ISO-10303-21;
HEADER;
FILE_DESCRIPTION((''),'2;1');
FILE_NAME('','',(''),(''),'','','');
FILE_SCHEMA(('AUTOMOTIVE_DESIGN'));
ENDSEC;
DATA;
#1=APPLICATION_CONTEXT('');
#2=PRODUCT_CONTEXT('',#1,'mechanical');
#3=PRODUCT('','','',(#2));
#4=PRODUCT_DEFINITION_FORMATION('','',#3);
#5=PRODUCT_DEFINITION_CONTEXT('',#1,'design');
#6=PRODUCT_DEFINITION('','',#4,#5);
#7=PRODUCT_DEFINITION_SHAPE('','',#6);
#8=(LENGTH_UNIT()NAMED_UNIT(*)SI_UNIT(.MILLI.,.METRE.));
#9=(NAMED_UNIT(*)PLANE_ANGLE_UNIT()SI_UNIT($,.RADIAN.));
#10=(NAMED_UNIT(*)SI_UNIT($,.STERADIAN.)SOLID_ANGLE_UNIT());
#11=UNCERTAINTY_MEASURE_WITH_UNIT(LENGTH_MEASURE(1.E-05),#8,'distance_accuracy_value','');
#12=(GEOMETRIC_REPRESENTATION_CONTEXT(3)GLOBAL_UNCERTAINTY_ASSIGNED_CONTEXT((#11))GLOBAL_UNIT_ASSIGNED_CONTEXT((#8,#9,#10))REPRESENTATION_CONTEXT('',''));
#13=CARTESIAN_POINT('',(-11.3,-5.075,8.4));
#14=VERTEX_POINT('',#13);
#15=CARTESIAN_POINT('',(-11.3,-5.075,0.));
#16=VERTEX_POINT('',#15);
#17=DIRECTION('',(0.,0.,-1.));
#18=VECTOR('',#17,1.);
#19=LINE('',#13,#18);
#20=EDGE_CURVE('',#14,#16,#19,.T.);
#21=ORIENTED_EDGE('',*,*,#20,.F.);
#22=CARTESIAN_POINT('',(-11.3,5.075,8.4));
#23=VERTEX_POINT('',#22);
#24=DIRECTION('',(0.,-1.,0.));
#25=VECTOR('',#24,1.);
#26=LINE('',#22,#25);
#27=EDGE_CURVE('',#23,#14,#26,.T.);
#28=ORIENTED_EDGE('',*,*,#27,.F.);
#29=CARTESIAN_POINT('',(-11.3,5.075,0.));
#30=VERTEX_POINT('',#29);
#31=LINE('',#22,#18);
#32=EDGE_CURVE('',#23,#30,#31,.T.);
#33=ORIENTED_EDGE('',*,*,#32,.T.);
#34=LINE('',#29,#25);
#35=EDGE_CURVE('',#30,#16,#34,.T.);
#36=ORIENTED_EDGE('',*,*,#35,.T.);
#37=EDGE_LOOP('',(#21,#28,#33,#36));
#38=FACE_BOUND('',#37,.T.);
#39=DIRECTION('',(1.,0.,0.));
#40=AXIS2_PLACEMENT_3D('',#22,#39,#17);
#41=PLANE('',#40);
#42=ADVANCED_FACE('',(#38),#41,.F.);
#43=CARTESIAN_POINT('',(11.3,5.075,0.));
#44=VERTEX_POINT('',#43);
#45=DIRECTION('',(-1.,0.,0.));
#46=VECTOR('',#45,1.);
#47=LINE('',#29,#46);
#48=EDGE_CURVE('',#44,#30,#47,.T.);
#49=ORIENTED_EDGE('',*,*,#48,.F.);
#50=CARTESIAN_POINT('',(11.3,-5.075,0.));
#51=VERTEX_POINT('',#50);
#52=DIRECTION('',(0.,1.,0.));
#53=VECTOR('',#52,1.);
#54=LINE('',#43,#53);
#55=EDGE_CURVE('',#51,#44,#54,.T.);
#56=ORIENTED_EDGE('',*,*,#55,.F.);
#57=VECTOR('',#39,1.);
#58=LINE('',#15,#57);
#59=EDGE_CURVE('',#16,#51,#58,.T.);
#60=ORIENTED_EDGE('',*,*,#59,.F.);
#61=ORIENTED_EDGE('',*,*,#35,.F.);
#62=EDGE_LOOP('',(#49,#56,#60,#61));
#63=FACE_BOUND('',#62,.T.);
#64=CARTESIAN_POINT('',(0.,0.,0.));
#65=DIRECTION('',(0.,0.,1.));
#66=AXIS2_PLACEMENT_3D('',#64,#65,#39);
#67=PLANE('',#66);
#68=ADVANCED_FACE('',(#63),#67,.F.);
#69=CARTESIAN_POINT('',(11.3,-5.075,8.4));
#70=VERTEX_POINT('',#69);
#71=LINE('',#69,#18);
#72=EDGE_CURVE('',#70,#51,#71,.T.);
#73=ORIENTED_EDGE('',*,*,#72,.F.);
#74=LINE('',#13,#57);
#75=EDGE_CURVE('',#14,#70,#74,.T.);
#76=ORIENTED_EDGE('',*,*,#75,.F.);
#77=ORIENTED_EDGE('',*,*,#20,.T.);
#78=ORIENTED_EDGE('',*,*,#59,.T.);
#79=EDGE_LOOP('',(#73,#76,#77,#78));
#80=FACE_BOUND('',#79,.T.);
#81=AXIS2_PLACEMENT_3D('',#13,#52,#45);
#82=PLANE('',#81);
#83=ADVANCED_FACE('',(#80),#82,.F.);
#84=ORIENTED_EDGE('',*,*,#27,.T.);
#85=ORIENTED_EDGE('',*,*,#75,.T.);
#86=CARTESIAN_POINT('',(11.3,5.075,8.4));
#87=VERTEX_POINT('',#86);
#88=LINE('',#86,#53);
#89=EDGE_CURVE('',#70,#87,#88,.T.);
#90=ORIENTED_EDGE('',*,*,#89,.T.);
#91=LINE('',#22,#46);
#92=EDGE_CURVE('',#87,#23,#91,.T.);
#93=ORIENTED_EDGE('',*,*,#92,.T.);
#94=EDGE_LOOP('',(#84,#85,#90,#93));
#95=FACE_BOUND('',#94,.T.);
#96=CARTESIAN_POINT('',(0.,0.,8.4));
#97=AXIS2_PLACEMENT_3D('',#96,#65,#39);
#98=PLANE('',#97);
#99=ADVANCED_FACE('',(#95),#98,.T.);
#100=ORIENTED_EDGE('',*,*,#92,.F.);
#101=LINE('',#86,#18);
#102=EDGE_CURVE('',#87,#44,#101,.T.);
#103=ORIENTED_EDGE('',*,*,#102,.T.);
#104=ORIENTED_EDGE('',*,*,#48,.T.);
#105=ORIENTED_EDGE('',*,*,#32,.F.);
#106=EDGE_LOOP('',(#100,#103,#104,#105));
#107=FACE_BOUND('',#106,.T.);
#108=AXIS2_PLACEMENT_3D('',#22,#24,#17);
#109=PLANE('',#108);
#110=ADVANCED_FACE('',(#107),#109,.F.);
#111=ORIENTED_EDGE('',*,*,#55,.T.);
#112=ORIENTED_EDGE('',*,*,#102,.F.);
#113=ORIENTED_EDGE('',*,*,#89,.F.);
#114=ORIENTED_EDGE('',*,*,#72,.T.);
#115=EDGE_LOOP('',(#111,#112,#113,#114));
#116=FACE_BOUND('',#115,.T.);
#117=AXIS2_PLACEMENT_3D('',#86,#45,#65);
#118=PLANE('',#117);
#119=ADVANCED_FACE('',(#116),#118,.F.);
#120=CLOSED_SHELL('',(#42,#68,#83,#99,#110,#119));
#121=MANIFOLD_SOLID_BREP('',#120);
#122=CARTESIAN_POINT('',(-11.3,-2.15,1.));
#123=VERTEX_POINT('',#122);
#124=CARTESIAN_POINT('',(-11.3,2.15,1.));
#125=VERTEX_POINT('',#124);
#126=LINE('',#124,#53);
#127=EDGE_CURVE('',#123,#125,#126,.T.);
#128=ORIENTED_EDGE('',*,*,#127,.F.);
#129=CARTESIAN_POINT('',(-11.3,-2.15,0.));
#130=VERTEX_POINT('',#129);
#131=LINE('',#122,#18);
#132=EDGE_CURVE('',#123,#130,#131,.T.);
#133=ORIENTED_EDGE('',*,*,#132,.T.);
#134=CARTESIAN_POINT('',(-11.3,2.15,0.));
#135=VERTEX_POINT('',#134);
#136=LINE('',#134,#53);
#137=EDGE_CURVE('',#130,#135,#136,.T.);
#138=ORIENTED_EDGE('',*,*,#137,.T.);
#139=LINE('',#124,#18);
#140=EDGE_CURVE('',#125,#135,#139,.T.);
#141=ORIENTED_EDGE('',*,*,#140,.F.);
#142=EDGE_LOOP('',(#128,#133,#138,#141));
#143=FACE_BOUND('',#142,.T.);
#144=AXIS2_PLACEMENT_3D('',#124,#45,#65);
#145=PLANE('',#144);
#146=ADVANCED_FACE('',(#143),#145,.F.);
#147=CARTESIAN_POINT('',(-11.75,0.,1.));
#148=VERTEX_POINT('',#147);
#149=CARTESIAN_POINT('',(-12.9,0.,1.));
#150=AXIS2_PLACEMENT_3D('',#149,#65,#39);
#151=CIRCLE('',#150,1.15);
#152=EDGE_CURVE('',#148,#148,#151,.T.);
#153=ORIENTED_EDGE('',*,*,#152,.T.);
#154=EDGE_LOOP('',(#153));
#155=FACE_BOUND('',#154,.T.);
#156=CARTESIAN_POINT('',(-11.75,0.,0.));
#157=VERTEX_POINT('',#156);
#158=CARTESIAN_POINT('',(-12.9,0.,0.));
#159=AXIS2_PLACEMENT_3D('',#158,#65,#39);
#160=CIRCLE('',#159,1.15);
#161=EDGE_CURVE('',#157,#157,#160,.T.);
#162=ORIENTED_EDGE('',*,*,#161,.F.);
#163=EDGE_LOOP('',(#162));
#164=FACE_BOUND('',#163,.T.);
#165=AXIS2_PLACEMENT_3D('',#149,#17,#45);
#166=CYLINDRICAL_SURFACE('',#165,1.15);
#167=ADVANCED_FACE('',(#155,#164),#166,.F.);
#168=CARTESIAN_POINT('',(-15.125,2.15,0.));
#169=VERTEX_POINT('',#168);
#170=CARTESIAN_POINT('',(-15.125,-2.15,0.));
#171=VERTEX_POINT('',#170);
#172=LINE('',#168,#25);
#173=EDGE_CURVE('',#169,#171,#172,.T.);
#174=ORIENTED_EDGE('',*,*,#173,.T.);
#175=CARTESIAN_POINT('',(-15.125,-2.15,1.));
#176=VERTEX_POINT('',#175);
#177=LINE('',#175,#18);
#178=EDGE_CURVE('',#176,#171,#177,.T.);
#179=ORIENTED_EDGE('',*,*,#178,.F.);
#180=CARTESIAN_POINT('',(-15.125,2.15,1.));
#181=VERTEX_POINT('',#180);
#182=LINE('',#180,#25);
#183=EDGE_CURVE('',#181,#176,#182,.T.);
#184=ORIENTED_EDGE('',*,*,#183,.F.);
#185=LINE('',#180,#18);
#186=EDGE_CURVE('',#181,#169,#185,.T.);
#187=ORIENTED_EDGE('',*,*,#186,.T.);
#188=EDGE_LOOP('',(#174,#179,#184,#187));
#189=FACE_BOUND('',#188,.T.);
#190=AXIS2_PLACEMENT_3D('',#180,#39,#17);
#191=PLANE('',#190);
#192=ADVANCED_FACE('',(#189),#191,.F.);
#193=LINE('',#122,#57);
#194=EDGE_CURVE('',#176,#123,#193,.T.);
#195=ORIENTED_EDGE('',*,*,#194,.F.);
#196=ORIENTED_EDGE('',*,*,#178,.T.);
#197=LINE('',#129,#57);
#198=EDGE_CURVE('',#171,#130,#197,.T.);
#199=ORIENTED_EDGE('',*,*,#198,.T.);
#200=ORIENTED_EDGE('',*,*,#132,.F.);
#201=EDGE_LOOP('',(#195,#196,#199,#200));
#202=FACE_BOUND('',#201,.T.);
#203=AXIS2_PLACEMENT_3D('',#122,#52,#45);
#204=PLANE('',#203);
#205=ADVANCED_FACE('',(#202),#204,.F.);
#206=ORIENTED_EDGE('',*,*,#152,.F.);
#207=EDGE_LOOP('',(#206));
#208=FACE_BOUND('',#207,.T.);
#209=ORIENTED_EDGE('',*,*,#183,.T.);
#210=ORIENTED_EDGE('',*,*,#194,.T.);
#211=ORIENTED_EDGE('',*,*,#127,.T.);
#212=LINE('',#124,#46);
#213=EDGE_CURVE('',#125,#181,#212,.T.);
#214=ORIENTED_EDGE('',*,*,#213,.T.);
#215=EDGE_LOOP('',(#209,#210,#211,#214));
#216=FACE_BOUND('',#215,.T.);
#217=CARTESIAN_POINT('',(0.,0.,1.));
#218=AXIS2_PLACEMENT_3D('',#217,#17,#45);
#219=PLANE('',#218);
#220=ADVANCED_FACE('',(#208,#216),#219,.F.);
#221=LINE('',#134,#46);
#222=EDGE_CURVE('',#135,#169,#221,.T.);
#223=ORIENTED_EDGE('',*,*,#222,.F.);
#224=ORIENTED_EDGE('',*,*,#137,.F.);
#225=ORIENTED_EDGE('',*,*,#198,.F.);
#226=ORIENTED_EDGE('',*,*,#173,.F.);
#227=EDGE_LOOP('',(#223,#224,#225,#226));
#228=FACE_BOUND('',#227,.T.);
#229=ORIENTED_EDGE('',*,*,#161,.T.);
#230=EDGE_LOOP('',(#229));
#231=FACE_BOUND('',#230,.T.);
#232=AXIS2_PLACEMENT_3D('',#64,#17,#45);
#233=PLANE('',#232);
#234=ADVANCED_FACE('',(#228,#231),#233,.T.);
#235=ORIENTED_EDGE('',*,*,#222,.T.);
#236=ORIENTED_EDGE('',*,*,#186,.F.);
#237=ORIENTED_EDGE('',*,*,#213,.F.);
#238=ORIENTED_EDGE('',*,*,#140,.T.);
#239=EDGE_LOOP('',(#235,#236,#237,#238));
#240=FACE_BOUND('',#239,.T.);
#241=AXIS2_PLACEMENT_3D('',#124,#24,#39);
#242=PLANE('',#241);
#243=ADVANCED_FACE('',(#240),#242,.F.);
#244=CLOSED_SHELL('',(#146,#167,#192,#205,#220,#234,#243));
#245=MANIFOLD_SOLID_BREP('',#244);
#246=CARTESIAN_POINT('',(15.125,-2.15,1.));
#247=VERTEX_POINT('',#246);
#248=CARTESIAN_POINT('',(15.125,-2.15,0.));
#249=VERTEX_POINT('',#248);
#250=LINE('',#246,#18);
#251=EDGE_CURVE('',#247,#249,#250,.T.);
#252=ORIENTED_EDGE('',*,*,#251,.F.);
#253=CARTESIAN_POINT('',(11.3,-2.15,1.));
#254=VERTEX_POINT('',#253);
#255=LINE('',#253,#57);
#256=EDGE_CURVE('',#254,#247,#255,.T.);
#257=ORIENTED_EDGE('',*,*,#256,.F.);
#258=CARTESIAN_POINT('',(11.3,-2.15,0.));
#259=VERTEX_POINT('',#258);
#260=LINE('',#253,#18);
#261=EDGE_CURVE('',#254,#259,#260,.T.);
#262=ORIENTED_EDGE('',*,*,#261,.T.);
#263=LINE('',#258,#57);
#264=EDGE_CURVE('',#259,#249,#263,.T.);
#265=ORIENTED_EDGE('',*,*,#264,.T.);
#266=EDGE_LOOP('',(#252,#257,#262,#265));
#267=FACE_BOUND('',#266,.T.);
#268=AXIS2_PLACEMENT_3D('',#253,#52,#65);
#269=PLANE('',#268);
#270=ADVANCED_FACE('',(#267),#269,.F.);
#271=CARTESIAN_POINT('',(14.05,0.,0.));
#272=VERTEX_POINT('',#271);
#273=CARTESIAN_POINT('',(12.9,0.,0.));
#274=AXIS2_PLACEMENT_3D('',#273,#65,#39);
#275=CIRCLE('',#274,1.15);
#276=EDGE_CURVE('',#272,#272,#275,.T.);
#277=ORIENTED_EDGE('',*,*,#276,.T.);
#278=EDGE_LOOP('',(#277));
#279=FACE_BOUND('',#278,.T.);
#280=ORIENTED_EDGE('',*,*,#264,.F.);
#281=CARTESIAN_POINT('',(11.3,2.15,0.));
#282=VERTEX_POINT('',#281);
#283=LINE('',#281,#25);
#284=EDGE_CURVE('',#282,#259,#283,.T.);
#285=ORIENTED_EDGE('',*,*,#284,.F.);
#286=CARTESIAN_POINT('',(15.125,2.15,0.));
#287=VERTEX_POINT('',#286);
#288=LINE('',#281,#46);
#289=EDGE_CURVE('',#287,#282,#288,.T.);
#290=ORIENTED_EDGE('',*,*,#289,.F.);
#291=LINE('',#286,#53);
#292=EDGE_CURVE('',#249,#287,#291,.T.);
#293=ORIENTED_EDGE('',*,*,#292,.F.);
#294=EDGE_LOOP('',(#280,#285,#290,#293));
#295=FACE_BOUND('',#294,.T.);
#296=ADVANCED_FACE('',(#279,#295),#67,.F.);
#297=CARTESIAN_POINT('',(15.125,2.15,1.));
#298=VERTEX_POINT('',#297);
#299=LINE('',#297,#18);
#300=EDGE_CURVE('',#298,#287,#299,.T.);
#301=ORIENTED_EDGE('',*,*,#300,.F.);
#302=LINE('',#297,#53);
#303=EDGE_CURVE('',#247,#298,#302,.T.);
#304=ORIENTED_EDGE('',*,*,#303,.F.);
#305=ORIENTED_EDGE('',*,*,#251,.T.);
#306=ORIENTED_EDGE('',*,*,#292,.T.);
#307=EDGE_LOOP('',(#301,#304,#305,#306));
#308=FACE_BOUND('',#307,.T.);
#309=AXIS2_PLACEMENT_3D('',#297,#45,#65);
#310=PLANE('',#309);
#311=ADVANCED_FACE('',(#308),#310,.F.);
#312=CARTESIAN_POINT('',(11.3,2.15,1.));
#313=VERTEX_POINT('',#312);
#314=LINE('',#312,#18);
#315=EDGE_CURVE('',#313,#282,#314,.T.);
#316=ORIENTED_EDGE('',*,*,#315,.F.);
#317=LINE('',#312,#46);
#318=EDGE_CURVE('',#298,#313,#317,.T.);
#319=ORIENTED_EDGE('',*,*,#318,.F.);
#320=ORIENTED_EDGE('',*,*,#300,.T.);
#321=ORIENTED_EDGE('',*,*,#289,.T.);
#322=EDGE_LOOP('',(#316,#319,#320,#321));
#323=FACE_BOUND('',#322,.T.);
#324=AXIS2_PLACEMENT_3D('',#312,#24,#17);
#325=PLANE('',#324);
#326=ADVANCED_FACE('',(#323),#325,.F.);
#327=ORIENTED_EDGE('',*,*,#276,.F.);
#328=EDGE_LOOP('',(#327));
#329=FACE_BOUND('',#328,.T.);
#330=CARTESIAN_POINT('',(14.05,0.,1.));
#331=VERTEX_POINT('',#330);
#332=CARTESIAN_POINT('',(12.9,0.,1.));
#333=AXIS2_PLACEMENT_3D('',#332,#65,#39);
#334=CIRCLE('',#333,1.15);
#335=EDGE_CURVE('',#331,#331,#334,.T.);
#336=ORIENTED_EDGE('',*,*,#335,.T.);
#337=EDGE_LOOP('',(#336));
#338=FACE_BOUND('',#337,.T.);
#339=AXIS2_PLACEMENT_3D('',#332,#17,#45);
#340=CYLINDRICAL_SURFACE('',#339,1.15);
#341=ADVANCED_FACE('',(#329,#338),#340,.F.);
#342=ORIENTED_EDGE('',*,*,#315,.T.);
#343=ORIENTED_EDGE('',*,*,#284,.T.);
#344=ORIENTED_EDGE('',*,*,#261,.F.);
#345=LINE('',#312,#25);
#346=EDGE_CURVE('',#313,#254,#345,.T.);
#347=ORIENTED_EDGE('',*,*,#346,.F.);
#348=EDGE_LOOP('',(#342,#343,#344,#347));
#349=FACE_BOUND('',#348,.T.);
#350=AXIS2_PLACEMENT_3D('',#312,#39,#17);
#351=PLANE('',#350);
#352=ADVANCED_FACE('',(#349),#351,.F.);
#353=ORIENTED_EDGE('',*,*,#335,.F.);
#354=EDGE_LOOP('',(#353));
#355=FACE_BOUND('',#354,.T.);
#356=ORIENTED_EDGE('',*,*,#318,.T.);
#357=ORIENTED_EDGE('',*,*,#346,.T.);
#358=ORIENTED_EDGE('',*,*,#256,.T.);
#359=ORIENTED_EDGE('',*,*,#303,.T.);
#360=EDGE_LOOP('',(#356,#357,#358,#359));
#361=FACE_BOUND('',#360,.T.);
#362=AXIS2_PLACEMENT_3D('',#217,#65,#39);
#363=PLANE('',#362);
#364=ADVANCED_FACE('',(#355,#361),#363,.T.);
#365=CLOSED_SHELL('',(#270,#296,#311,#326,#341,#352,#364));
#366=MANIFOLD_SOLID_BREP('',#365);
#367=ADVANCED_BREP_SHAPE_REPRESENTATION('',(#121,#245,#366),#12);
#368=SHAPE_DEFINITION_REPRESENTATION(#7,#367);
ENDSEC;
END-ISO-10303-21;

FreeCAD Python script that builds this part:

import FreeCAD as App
import Part
import Sketcher
from FreeCAD import Vector
Q = App.Units.Quantity

doc = App.newDocument("Part")
body = doc.addObject("PartDesign::Body", "Body")

sketch1 = body.newObject("Sketcher::SketchObject", "Sketch")
sketch1.AttachmentSupport = (doc.getObject("XY_Plane"), [""])
sketch1.MapMode = "FlatFace"
sketch1.addGeometry([
    Part.LineSegment(Vector(-11, 5, 0), Vector(-11, -5, 0)),
    Part.LineSegment(Vector(-11, -5, 0), Vector(11, -5, 0)),
    Part.LineSegment(Vector(11, -5, 0), Vector(11, 5, 0)),
    Part.LineSegment(Vector(11, 5, 0), Vector(-11, 5, 0)),
], False)
sketch1.addConstraint([
    Sketcher.Constraint("Coincident", 0, 2, 1, 1),
    Sketcher.Constraint("Coincident", 1, 2, 2, 1),
    Sketcher.Constraint("Coincident", 2, 2, 3, 1),
    Sketcher.Constraint("Coincident", 3, 2, 0, 1),
    Sketcher.Constraint("Vertical", 0),
    Sketcher.Constraint("Horizontal", 1),
    Sketcher.Constraint("Vertical", 2),
    Sketcher.Constraint("Horizontal", 3),
    Sketcher.Constraint("Symmetric", 0, 2, 2, 2, -1, 1),
    Sketcher.Constraint("DistanceX", 1, 1, 1, 2, Q("22.6 mm")),
    Sketcher.Constraint("DistanceY", 0, 2, 0, 1, Q("10.15 mm")),
])
pad1 = body.newObject("PartDesign::Pad", "Pad")
pad1.Profile = sketch1
pad1.Length = 8.4
body2 = doc.addObject("PartDesign::Body", "Body001")

sketch2 = body2.newObject("Sketcher::SketchObject", "Sketch001")
sketch2.AttachmentSupport = (doc.getObject("XY_Plane001"), [""])
sketch2.MapMode = "FlatFace"
sketch2.addGeometry([
    Part.LineSegment(Vector(-15.1, 2.1, 0), Vector(-15.1, -2.1, 0)),
    Part.LineSegment(Vector(-15.1, -2.1, 0), Vector(-11.3, -2.1, 0)),
    Part.LineSegment(Vector(-11.3, -2.1, 0), Vector(-11.3, 2.1, 0)),
    Part.LineSegment(Vector(-11.3, 2.1, 0), Vector(-15.1, 2.1, 0)),
    Part.Circle(Vector(-12.9, 0, 0), Vector(0, 0, 1), 1.1),
], False)
sketch2.addConstraint([
    Sketcher.Constraint("Coincident", 0, 2, 1, 1),
    Sketcher.Constraint("Coincident", 1, 2, 2, 1),
    Sketcher.Constraint("Coincident", 2, 2, 3, 1),
    Sketcher.Constraint("Coincident", 3, 2, 0, 1),
    Sketcher.Constraint("Vertical", 0),
    Sketcher.Constraint("Horizontal", 1),
    Sketcher.Constraint("Vertical", 2),
    Sketcher.Constraint("Horizontal", 3),
    Sketcher.Constraint("PointOnObject", 4, 3, -1),
    Sketcher.Constraint("Diameter", 4, Q("2.3 mm")),
    Sketcher.Constraint("DistanceY", 0, 2, 0, 1, Q("4.3 mm")),
    Sketcher.Constraint("DistanceX", 4, 3, -1, 1, Q("12.9 mm")),
    Sketcher.Constraint("DistanceX", 1, 2, -1, 1, Q("11.3 mm")),
    Sketcher.Constraint("DistanceX", 1, 1, 1, 2, Q("3.825 mm")),
    Sketcher.Constraint("DistanceY", 0, 2, -1, 1, Q("2.15 mm")),
])
pad2 = body2.newObject("PartDesign::Pad", "Pad001")
pad2.Profile = sketch2
pad2.Length = 1
body3 = doc.addObject("PartDesign::Body", "Body002")

sketch3 = body3.newObject("Sketcher::SketchObject", "Sketch002")
sketch3.AttachmentSupport = (doc.getObject("XY_Plane002"), [""])
sketch3.MapMode = "FlatFace"
sketch3.addGeometry([
    Part.LineSegment(Vector(11.3, 2.1, 0), Vector(11.3, -2.1, 0)),
    Part.LineSegment(Vector(11.3, -2.1, 0), Vector(15.1, -2.1, 0)),
    Part.LineSegment(Vector(15.1, -2.1, 0), Vector(15.1, 2.1, 0)),
    Part.LineSegment(Vector(15.1, 2.1, 0), Vector(11.3, 2.1, 0)),
    Part.Circle(Vector(12.9, 0, 0), Vector(0, 0, 1), 1.1),
], False)
sketch3.addConstraint([
    Sketcher.Constraint("Coincident", 0, 2, 1, 1),
    Sketcher.Constraint("Coincident", 1, 2, 2, 1),
    Sketcher.Constraint("Coincident", 2, 2, 3, 1),
    Sketcher.Constraint("Coincident", 3, 2, 0, 1),
    Sketcher.Constraint("Vertical", 0),
    Sketcher.Constraint("Horizontal", 1),
    Sketcher.Constraint("Vertical", 2),
    Sketcher.Constraint("Horizontal", 3),
    Sketcher.Constraint("PointOnObject", 4, 3, -1),
    Sketcher.Constraint("Diameter", 4, Q("2.3 mm")),
    Sketcher.Constraint("DistanceY", 0, 2, 0, 1, Q("4.3 mm")),
    Sketcher.Constraint("DistanceX", -1, 1, 4, 3, Q("12.9 mm")),
    Sketcher.Constraint("DistanceX", -1, 1, 0, 2, Q("11.3 mm")),
    Sketcher.Constraint("DistanceX", 1, 1, 1, 2, Q("3.825 mm")),
    Sketcher.Constraint("DistanceY", 0, 2, -1, 1, Q("2.15 mm")),
])
pad3 = body3.newObject("PartDesign::Pad", "Pad002")
pad3.Profile = sketch3
pad3.Length = 1

doc.recompute()
